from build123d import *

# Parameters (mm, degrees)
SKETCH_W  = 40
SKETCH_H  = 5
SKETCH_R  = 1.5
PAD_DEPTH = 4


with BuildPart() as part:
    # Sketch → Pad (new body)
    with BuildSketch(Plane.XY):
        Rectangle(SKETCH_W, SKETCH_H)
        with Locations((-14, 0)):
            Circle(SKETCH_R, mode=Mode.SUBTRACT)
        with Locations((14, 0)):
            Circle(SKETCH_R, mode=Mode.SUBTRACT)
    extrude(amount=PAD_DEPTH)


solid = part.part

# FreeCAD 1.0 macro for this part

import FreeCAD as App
import Part
import Sketcher
Q = App.Units.Quantity

doc = App.newDocument("Part")
body = doc.addObject("PartDesign::Body", "Body")

sketch1 = body.newObject("Sketcher::SketchObject", "Sketch")
sketch1.AttachmentSupport = (doc.getObject("XY_Plane"), [""])
sketch1.MapMode = "FlatFace"
sketch1.addGeometry(Part.LineSegment(App.Vector(-20, 2.5, 0), App.Vector(-20, -2.5, 0)), False)
sketch1.addGeometry(Part.LineSegment(App.Vector(-20, -2.5, 0), App.Vector(20, -2.5, 0)), False)
sketch1.addGeometry(Part.LineSegment(App.Vector(20, -2.5, 0), App.Vector(20, 2.5, 0)), False)
sketch1.addGeometry(Part.LineSegment(App.Vector(20, 2.5, 0), App.Vector(-20, 2.5, 0)), False)
sketch1.addGeometry(Part.Circle(App.Vector(-14, 0, 0), App.Vector(0, 0, 1), 1.5), False)
sketch1.addGeometry(Part.Circle(App.Vector(14, 0, 0), App.Vector(0, 0, 1), 1.5), False)
sketch1.addConstraint(Sketcher.Constraint("Coincident", 0, 2, 1, 1))
sketch1.addConstraint(Sketcher.Constraint("Coincident", 1, 2, 2, 1))
sketch1.addConstraint(Sketcher.Constraint("Coincident", 2, 2, 3, 1))
sketch1.addConstraint(Sketcher.Constraint("Coincident", 3, 2, 0, 1))
sketch1.addConstraint(Sketcher.Constraint("Vertical", 0))
sketch1.addConstraint(Sketcher.Constraint("Horizontal", 1))
sketch1.addConstraint(Sketcher.Constraint("Vertical", 2))
sketch1.addConstraint(Sketcher.Constraint("Horizontal", 3))
sketch1.addConstraint(Sketcher.Constraint("Equal", 4, 5))
sketch1.addConstraint(Sketcher.Constraint("Symmetric", 4, 3, 5, 3, -1, 1))
sketch1.addConstraint(Sketcher.Constraint("Symmetric", 0, 2, 2, 2, -1, 1))
sketch1.addConstraint(Sketcher.Constraint("PointOnObject", 4, 3, -1))
sketch1.addConstraint(Sketcher.Constraint("Diameter", 4, Q("3 mm")))
sketch1.addConstraint(Sketcher.Constraint("DistanceX", 1, 1, 1, 2, Q("40 mm")))
sketch1.addConstraint(Sketcher.Constraint("DistanceY", 0, 2, 0, 1, Q("5 mm")))
sketch1.addConstraint(Sketcher.Constraint("DistanceX", 4, 3, -1, 1, Q("14 mm")))
pad1 = body.newObject("PartDesign::Pad", "Pad")
pad1.Profile = sketch1
pad1.Length = 4

doc.recompute()
